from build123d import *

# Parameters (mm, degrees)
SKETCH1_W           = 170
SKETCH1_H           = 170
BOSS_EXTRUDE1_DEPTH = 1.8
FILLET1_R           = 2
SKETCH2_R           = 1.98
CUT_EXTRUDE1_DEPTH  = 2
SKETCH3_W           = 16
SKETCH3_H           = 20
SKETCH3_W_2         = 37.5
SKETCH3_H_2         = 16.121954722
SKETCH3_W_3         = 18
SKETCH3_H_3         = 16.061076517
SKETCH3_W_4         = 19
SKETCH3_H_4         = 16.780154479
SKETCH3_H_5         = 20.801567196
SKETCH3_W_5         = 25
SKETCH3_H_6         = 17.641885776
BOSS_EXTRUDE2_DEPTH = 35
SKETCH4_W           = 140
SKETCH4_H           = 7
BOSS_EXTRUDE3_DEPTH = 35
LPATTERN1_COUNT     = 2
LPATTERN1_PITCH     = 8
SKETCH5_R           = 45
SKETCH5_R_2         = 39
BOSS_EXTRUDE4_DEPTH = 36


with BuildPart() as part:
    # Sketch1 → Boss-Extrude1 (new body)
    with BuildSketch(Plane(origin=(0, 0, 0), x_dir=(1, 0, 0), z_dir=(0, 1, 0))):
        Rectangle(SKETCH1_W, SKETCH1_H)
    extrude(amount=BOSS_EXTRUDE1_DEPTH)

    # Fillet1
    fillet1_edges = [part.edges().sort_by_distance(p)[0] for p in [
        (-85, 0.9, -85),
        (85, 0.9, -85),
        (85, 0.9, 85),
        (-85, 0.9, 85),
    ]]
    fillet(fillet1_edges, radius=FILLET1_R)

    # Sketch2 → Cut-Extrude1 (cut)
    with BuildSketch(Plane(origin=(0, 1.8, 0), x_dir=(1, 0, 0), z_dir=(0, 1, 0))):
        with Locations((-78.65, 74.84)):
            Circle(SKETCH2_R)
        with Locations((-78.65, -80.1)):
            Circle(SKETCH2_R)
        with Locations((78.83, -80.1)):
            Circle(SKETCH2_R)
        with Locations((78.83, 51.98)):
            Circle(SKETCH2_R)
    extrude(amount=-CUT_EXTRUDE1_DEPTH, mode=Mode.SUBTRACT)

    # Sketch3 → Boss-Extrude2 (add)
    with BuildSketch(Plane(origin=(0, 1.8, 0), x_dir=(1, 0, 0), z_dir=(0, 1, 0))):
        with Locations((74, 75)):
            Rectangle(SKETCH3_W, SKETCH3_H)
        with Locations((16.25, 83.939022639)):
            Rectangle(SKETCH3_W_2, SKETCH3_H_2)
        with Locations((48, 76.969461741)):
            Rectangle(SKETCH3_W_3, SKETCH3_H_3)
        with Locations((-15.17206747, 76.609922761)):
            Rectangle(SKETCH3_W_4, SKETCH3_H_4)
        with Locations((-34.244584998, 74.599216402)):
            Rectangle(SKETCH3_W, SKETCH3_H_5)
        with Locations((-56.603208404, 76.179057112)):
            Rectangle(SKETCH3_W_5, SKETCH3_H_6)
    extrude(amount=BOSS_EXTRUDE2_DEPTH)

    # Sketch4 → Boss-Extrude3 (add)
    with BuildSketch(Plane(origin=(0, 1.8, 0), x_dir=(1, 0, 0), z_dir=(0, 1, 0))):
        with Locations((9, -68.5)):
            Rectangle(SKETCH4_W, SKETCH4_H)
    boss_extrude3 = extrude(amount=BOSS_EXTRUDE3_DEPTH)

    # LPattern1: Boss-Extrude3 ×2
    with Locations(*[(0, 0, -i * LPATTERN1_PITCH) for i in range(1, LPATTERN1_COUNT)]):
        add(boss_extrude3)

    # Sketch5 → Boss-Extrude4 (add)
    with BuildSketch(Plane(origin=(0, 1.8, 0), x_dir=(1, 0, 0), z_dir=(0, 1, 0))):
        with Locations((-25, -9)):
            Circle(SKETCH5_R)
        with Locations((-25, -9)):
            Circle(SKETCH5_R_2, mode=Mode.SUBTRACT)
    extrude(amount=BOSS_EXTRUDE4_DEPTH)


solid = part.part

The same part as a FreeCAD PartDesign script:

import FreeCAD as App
import Part
import Sketcher


def edges_at(feature, points):
    """Names of the edges that pass closest to the given points."""
    edges = feature.Shape.Edges
    near = lambda p: min(range(len(edges)), key=lambda i: edges[i].distToShape(Part.Vertex(*p))[0])
    return sorted({f"Edge{near(p) + 1}" for p in points})

doc = App.newDocument("Part")
body = doc.addObject("PartDesign::Body", "Body")

# Sketch on XZ plane
sketch1 = doc.addObject("Sketcher::SketchObject", "Sketch")
body.addObject(sketch1)
sketch1.AttachmentSupport = (doc.XZ_Plane, [""])
sketch1.MapMode = "FlatFace"
sketch1.addGeometry(Part.LineSegment(App.Vector(-85, -85, 0), App.Vector(-85, 85, 0)), False)
sketch1.addGeometry(Part.LineSegment(App.Vector(-85, 85, 0), App.Vector(85, 85, 0)), False)
sketch1.addGeometry(Part.LineSegment(App.Vector(85, 85, 0), App.Vector(85, -85, 0)), False)
sketch1.addGeometry(Part.LineSegment(App.Vector(85, -85, 0), App.Vector(-85, -85, 0)), False)
sketch1.addConstraint(Sketcher.Constraint("Coincident", 0, 2, 1, 1))
sketch1.addConstraint(Sketcher.Constraint("Coincident", 1, 2, 2, 1))
sketch1.addConstraint(Sketcher.Constraint("Coincident", 2, 2, 3, 1))
sketch1.addConstraint(Sketcher.Constraint("Coincident", 3, 2, 0, 1))
sketch1.addConstraint(Sketcher.Constraint("Vertical", 0))
sketch1.addConstraint(Sketcher.Constraint("Horizontal", 1))
sketch1.addConstraint(Sketcher.Constraint("Vertical", 2))
sketch1.addConstraint(Sketcher.Constraint("Horizontal", 3))
sketch1.addConstraint(Sketcher.Constraint("Symmetric", 0, 2, 2, 2, -1, 1))
sketch1.addConstraint(Sketcher.Constraint("Equal", 3, 0))
sketch1.addConstraint(Sketcher.Constraint("DistanceX", 1, 1, 1, 2, 170.0))
pad1 = doc.addObject("PartDesign::Pad", "Pad")
body.addObject(pad1)
pad1.Profile = sketch1
pad1.Length = 1.8
pad1.Reversed = True
doc.recompute()

fillet = doc.addObject("PartDesign::Fillet", "Fillet")
body.addObject(fillet)
fillet.Base = (pad1, edges_at(pad1, [
    (-85, 0.9, -85),
    (85, 0.9, -85),
    (85, 0.9, 85),
    (-85, 0.9, 85),
]))
fillet.Radius = 2

# Sketch on XZ plane
sketch2 = doc.addObject("Sketcher::SketchObject", "Sketch001")
body.addObject(sketch2)
sketch2.AttachmentSupport = (doc.XZ_Plane, [""])
sketch2.MapMode = "FlatFace"
sketch2.AttachmentOffset = App.Placement(App.Vector(0, 0, -1.8), App.Rotation())
sketch2.addGeometry(Part.Circle(App.Vector(-78.7, -74.8, 0), App.Vector(0, 0, 1), 2), False)
sketch2.addGeometry(Part.Circle(App.Vector(-78.7, 80.1, 0), App.Vector(0, 0, 1), 2), False)
sketch2.addGeometry(Part.Circle(App.Vector(78.8, 80.1, 0), App.Vector(0, 0, 1), 2), False)
sketch2.addGeometry(Part.Circle(App.Vector(78.8, -52, 0), App.Vector(0, 0, 1), 2), False)
sketch2.addConstraint(Sketcher.Constraint("Equal", 0, 1))
sketch2.addConstraint(Sketcher.Constraint("Equal", 1, 2))
sketch2.addConstraint(Sketcher.Constraint("Equal", 2, 3))
sketch2.addConstraint(Sketcher.Constraint("Horizontal", 1, 3, 2, 3))
sketch2.addConstraint(Sketcher.Constraint("Vertical", 0, 3, 1, 3))
sketch2.addConstraint(Sketcher.Constraint("Vertical", 2, 3, 3, 3))
sketch2.addConstraint(Sketcher.Constraint("Diameter", 0, 3.96))
sketch2.addConstraint(Sketcher.Constraint("DistanceY", -1, 1, 1, 3, 80.1))
sketch2.addConstraint(Sketcher.Constraint("DistanceX", 0, 3, -1, 1, 78.65))
sketch2.addConstraint(Sketcher.Constraint("DistanceY", 0, 3, -1, 1, 74.84))
sketch2.addConstraint(Sketcher.Constraint("DistanceX", -1, 1, 2, 3, 78.83))
sketch2.addConstraint(Sketcher.Constraint("DistanceY", 3, 3, -1, 1, 51.98))
pocket1 = doc.addObject("PartDesign::Pocket", "Pocket")
body.addObject(pocket1)
pocket1.Profile = sketch2
pocket1.Length = 2
pocket1.Reversed = True

# Sketch on XZ plane
sketch3 = doc.addObject("Sketcher::SketchObject", "Sketch002")
body.addObject(sketch3)
sketch3.AttachmentSupport = (doc.XZ_Plane, [""])
sketch3.MapMode = "FlatFace"
sketch3.AttachmentOffset = App.Placement(App.Vector(0, 0, -1.8), App.Rotation())
sketch3.addGeometry(Part.LineSegment(App.Vector(66, -85, 0), App.Vector(66, -65, 0)), False)
sketch3.addGeometry(Part.LineSegment(App.Vector(66, -65, 0), App.Vector(82, -65, 0)), False)
sketch3.addGeometry(Part.LineSegment(App.Vector(82, -65, 0), App.Vector(82, -85, 0)), False)
sketch3.addGeometry(Part.LineSegment(App.Vector(82, -85, 0), App.Vector(66, -85, 0)), False)
sketch3.addGeometry(Part.LineSegment(App.Vector(-2, -92, 0), App.Vector(-2, -76, 0)), False)
sketch3.addGeometry(Part.LineSegment(App.Vector(-2, -76, 0), App.Vector(35, -76, 0)), False)
sketch3.addGeometry(Part.LineSegment(App.Vector(35, -76, 0), App.Vector(35, -92, 0)), False)
sketch3.addGeometry(Part.LineSegment(App.Vector(35, -92, 0), App.Vector(-2, -92, 0)), False)
sketch3.addGeometry(Part.LineSegment(App.Vector(39, -85, 0), App.Vector(39, -69, 0)), False)
sketch3.addGeometry(Part.LineSegment(App.Vector(39, -69, 0), App.Vector(57, -69, 0)), False)
sketch3.addGeometry(Part.LineSegment(App.Vector(57, -69, 0), App.Vector(57, -85, 0)), False)
sketch3.addGeometry(Part.LineSegment(App.Vector(57, -85, 0), App.Vector(39, -85, 0)), False)
sketch3.addGeometry(Part.LineSegment(App.Vector(-25, -85, 0), App.Vector(-25, -68, 0)), False)
sketch3.addGeometry(Part.LineSegment(App.Vector(-25, -68, 0), App.Vector(-6, -68, 0)), False)
sketch3.addGeometry(Part.LineSegment(App.Vector(-6, -68, 0), App.Vector(-6, -85, 0)), False)
sketch3.addGeometry(Part.LineSegment(App.Vector(-6, -85, 0), App.Vector(-25, -85, 0)), False)
sketch3.addGeometry(Part.LineSegment(App.Vector(-42, -85, 0), App.Vector(-42, -64, 0)), False)
sketch3.addGeometry(Part.LineSegment(App.Vector(-42, -64, 0), App.Vector(-26, -64, 0)), False)
sketch3.addGeometry(Part.LineSegment(App.Vector(-26, -64, 0), App.Vector(-26, -85, 0)), False)
sketch3.addGeometry(Part.LineSegment(App.Vector(-26, -85, 0), App.Vector(-42, -85, 0)), False)
sketch3.addGeometry(Part.LineSegment(App.Vector(-69, -85, 0), App.Vector(-69, -67, 0)), False)
sketch3.addGeometry(Part.LineSegment(App.Vector(-69, -67, 0), App.Vector(-44, -67, 0)), False)
sketch3.addGeometry(Part.LineSegment(App.Vector(-44, -67, 0), App.Vector(-44, -85, 0)), False)
sketch3.addGeometry(Part.LineSegment(App.Vector(-44, -85, 0), App.Vector(-69, -85, 0)), False)
sketch3.addConstraint(Sketcher.Constraint("Coincident", 0, 2, 1, 1))
sketch3.addConstraint(Sketcher.Constraint("Coincident", 1, 2, 2, 1))
sketch3.addConstraint(Sketcher.Constraint("Coincident", 2, 2, 3, 1))
sketch3.addConstraint(Sketcher.Constraint("Coincident", 3, 2, 0, 1))
sketch3.addConstraint(Sketcher.Constraint("Coincident", 4, 2, 5, 1))
sketch3.addConstraint(Sketcher.Constraint("Coincident", 5, 2, 6, 1))
sketch3.addConstraint(Sketcher.Constraint("Coincident", 6, 2, 7, 1))
sketch3.addConstraint(Sketcher.Constraint("Coincident", 7, 2, 4, 1))
sketch3.addConstraint(Sketcher.Constraint("Coincident", 8, 2, 9, 1))
sketch3.addConstraint(Sketcher.Constraint("Coincident", 9, 2, 10, 1))
sketch3.addConstraint(Sketcher.Constraint("Coincident", 10, 2, 11, 1))
sketch3.addConstraint(Sketcher.Constraint("Coincident", 11, 2, 8, 1))
sketch3.addConstraint(Sketcher.Constraint("Coincident", 12, 2, 13, 1))
sketch3.addConstraint(Sketcher.Constraint("Coincident", 13, 2, 14, 1))
sketch3.addConstraint(Sketcher.Constraint("Coincident", 14, 2, 15, 1))
sketch3.addConstraint(Sketcher.Constraint("Coincident", 15, 2, 12, 1))
sketch3.addConstraint(Sketcher.Constraint("Coincident", 16, 2, 17, 1))
sketch3.addConstraint(Sketcher.Constraint("Coincident", 17, 2, 18, 1))
sketch3.addConstraint(Sketcher.Constraint("Coincident", 18, 2, 19, 1))
sketch3.addConstraint(Sketcher.Constraint("Coincident", 19, 2, 16, 1))
sketch3.addConstraint(Sketcher.Constraint("Coincident", 20, 2, 21, 1))
sketch3.addConstraint(Sketcher.Constraint("Coincident", 21, 2, 22, 1))
sketch3.addConstraint(Sketcher.Constraint("Coincident", 22, 2, 23, 1))
sketch3.addConstraint(Sketcher.Constraint("Coincident", 23, 2, 20, 1))
sketch3.addConstraint(Sketcher.Constraint("Vertical", 0))
sketch3.addConstraint(Sketcher.Constraint("Horizontal", 1))
sketch3.addConstraint(Sketcher.Constraint("Vertical", 2))
sketch3.addConstraint(Sketcher.Constraint("Horizontal", 3))
sketch3.addConstraint(Sketcher.Constraint("Vertical", 4))
sketch3.addConstraint(Sketcher.Constraint("Horizontal", 5))
sketch3.addConstraint(Sketcher.Constraint("Vertical", 6))
sketch3.addConstraint(Sketcher.Constraint("Horizontal", 7))
sketch3.addConstraint(Sketcher.Constraint("Vertical", 8))
sketch3.addConstraint(Sketcher.Constraint("Horizontal", 9))
sketch3.addConstraint(Sketcher.Constraint("Vertical", 10))
sketch3.addConstraint(Sketcher.Constraint("Horizontal", 11))
sketch3.addConstraint(Sketcher.Constraint("Vertical", 12))
sketch3.addConstraint(Sketcher.Constraint("Horizontal", 13))
sketch3.addConstraint(Sketcher.Constraint("Vertical", 14))
sketch3.addConstraint(Sketcher.Constraint("Horizontal", 15))
sketch3.addConstraint(Sketcher.Constraint("Vertical", 16))
sketch3.addConstraint(Sketcher.Constraint("Horizontal", 17))
sketch3.addConstraint(Sketcher.Constraint("Vertical", 18))
sketch3.addConstraint(Sketcher.Constraint("Horizontal", 19))
sketch3.addConstraint(Sketcher.Constraint("Vertical", 20))
sketch3.addConstraint(Sketcher.Constraint("Horizontal", 21))
sketch3.addConstraint(Sketcher.Constraint("Vertical", 22))
sketch3.addConstraint(Sketcher.Constraint("Horizontal", 23))
sketch3.addConstraint(Sketcher.Constraint("Horizontal", 3, 2, 10, 2))
sketch3.addConstraint(Sketcher.Constraint("Horizontal", 11, 2, 14, 2))
sketch3.addConstraint(Sketcher.Constraint("Horizontal", 15, 2, 18, 2))
sketch3.addConstraint(Sketcher.Constraint("Horizontal", 19, 2, 22, 2))
sketch3.addConstraint(Sketcher.Constraint("Equal", 3, 17))
sketch3.addConstraint(Sketcher.Constraint("DistanceX", 1, 1, 1, 2, 16.0))
sketch3.addConstraint(Sketcher.Constraint("DistanceX", 9, 1, 9, 2, 18.0))
sketch3.addConstraint(Sketcher.Constraint("DistanceX", 13, 1, 13, 2, 19.0))
sketch3.addConstraint(Sketcher.Constraint("DistanceX", 21, 1, 21, 2, 25.0))
sketch3.addConstraint(Sketcher.Constraint("DistanceY", 0, 1, 0, 2, 20.0))
sketch3.addConstraint(Sketcher.Constraint("DistanceX", 5, 1, 5, 2, 37.5))
sketch3.addConstraint(Sketcher.Constraint("DistanceX", -1, 1, 0, 2, 66.0))
sketch3.addConstraint(Sketcher.Constraint("DistanceY", 0, 2, -1, 1, 65.0))
sketch3.addConstraint(Sketcher.Constraint("DistanceX", -1, 1, 5, 2, 35.0))
sketch3.addConstraint(Sketcher.Constraint("DistanceY", 6, 2, -1, 1, 92.0))
sketch3.addConstraint(Sketcher.Constraint("DistanceX", -1, 1, 8, 2, 39.0))
sketch3.addConstraint(Sketcher.Constraint("DistanceY", 4, 2, 12, 2, 7.6582))
sketch3.addConstraint(Sketcher.Constraint("DistanceY", 4, 1, 4, 2, 16.121955))
sketch3.addConstraint(Sketcher.Constraint("DistanceY", 8, 1, 8, 2, 16.061077))
sketch3.addConstraint(Sketcher.Constraint("DistanceY", 16, 1, 16, 2, 20.801567))
sketch3.addConstraint(Sketcher.Constraint("DistanceY", 20, 1, 20, 2, 17.641886))
sketch3.addConstraint(Sketcher.Constraint("DistanceX", 20, 2, -1, 1, 69.103208))
sketch3.addConstraint(Sketcher.Constraint("DistanceX", 20, 2, 12, 2, 44.431141))
sketch3.addConstraint(Sketcher.Constraint("DistanceX", 16, 2, -1, 1, 42.244585))
pad2 = doc.addObject("PartDesign::Pad", "Pad001")
body.addObject(pad2)
pad2.Profile = sketch3
pad2.Length = 35
pad2.Reversed = True

# Sketch on XZ plane
sketch4 = doc.addObject("Sketcher::SketchObject", "Sketch003")
body.addObject(sketch4)
sketch4.AttachmentSupport = (doc.XZ_Plane, [""])
sketch4.MapMode = "FlatFace"
sketch4.AttachmentOffset = App.Placement(App.Vector(0, 0, -1.8), App.Rotation())
sketch4.addGeometry(Part.LineSegment(App.Vector(-61, 65, 0), App.Vector(-61, 72, 0)), False)
sketch4.addGeometry(Part.LineSegment(App.Vector(-61, 72, 0), App.Vector(79, 72, 0)), False)
sketch4.addGeometry(Part.LineSegment(App.Vector(79, 72, 0), App.Vector(79, 65, 0)), False)
sketch4.addGeometry(Part.LineSegment(App.Vector(79, 65, 0), App.Vector(-61, 65, 0)), False)
sketch4.addConstraint(Sketcher.Constraint("Coincident", 0, 2, 1, 1))
sketch4.addConstraint(Sketcher.Constraint("Coincident", 1, 2, 2, 1))
sketch4.addConstraint(Sketcher.Constraint("Coincident", 2, 2, 3, 1))
sketch4.addConstraint(Sketcher.Constraint("Coincident", 3, 2, 0, 1))
sketch4.addConstraint(Sketcher.Constraint("Vertical", 0))
sketch4.addConstraint(Sketcher.Constraint("Horizontal", 1))
sketch4.addConstraint(Sketcher.Constraint("Vertical", 2))
sketch4.addConstraint(Sketcher.Constraint("Horizontal", 3))
sketch4.addConstraint(Sketcher.Constraint("DistanceX", 1, 1, 1, 2, 140.0))
sketch4.addConstraint(Sketcher.Constraint("DistanceY", 0, 1, 0, 2, 7.0))
sketch4.addConstraint(Sketcher.Constraint("DistanceX", 0, 2, -1, 1, 61.0))
sketch4.addConstraint(Sketcher.Constraint("DistanceY", -1, 1, 0, 2, 72.0))
pad3 = doc.addObject("PartDesign::Pad", "Pad002")
body.addObject(pad3)
pad3.Profile = sketch4
pad3.Length = 35
pad3.Reversed = True
doc.recompute()

linearpattern = doc.addObject("PartDesign::LinearPattern", "LinearPattern")
body.addObject(linearpattern)
linearpattern.Originals = [pad3]
linearpattern.Direction = (doc.Z_Axis, [""])
linearpattern.Mode = "offset"
linearpattern.Offset = 8
linearpattern.Occurrences = 2
linearpattern.Reversed = True
body.Tip = linearpattern

# Sketch on XZ plane
sketch5 = doc.addObject("Sketcher::SketchObject", "Sketch004")
body.addObject(sketch5)
sketch5.AttachmentSupport = (doc.XZ_Plane, [""])
sketch5.MapMode = "FlatFace"
sketch5.AttachmentOffset = App.Placement(App.Vector(0, 0, -1.8), App.Rotation())
sketch5.addGeometry(Part.Circle(App.Vector(-25, 9, 0), App.Vector(0, 0, 1), 45), False)
sketch5.addGeometry(Part.Circle(App.Vector(-25, 9, 0), App.Vector(0, 0, 1), 39), False)
sketch5.addConstraint(Sketcher.Constraint("Coincident", 1, 3, 0, 3))
sketch5.addConstraint(Sketcher.Constraint("Diameter", 0, 90.0))
sketch5.addConstraint(Sketcher.Constraint("Diameter", 1, 78.0))
sketch5.addConstraint(Sketcher.Constraint("DistanceX", 0, 3, -1, 1, 25.0))
sketch5.addConstraint(Sketcher.Constraint("DistanceY", -1, 1, 0, 3, 9.0))
pad4 = doc.addObject("PartDesign::Pad", "Pad003")
body.addObject(pad4)
pad4.Profile = sketch5
pad4.Length = 36
pad4.Reversed = True

doc.recompute()
